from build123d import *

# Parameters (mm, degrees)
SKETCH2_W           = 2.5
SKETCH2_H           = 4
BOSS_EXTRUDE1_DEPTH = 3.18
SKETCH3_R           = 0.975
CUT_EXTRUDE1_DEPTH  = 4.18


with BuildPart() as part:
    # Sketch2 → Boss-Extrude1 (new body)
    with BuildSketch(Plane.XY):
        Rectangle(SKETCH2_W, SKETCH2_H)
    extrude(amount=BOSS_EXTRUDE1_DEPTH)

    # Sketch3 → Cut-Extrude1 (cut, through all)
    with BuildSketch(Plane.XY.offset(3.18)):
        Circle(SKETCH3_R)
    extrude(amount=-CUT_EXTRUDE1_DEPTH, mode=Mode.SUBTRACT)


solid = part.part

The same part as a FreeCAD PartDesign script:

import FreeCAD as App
import Part
import Sketcher

V = App.Vector

doc = App.newDocument("Part")
params = doc.addObject("Spreadsheet::Sheet", "Params")
for row, (alias, value) in enumerate([
    ("sketch1_height", "4 mm"),
    ("sketch1_width", "2.5 mm"),
    ("pad1_length", "3.18 mm"),
    ("sketch2_diameter", "1.95 mm"),
], start=1):
    params.set(f"A{row}", alias)
    params.set(f"B{row}", "=" + value)
    params.setAlias(f"B{row}", alias)

body = doc.addObject("PartDesign::Body", "Body")

# Sketch on XY plane
sketch1 = body.newObject("Sketcher::SketchObject", "Sketch")
sketch1.AttachmentSupport = (doc.getObject("XY_Plane"), [""])
sketch1.MapMode = "FlatFace"
sketch1.addGeometry([
    Part.LineSegment(V(-1.2, 2, 0), V(-1.2, -2, 0)),
    Part.LineSegment(V(-1.2, -2, 0), V(1.2, -2, 0)),
    Part.LineSegment(V(1.2, -2, 0), V(1.2, 2, 0)),
    Part.LineSegment(V(1.2, 2, 0), V(-1.2, 2, 0)),
], False)
sketch1.addConstraint([
    Sketcher.Constraint("Coincident", 0, 2, 1, 1),
    Sketcher.Constraint("Coincident", 1, 2, 2, 1),
    Sketcher.Constraint("Coincident", 2, 2, 3, 1),
    Sketcher.Constraint("Coincident", 3, 2, 0, 1),
    Sketcher.Constraint("Vertical", 0),
    Sketcher.Constraint("Horizontal", 1),
    Sketcher.Constraint("Vertical", 2),
    Sketcher.Constraint("Horizontal", 3),
    Sketcher.Constraint("Symmetric", 0, 2, 2, 2, -1, 1),
    Sketcher.Constraint("DistanceY", 0, 2, 0, 1, 4.0),
    Sketcher.Constraint("DistanceX", 1, 1, 1, 2, 2.5),
])
sketch1.setExpression("Constraints[9]", "Params.sketch1_height")
sketch1.setExpression("Constraints[10]", "Params.sketch1_width")
pad1 = body.newObject("PartDesign::Pad", "Pad")
pad1.Profile = sketch1
pad1.setExpression("Length", "Params.pad1_length")

# Sketch on XY plane
sketch2 = body.newObject("Sketcher::SketchObject", "Sketch001")
sketch2.AttachmentSupport = (doc.getObject("XY_Plane"), [""])
sketch2.MapMode = "FlatFace"
sketch2.AttachmentOffset = App.Placement(V(0, 0, 3.18), App.Rotation())
sketch2.addGeometry(Part.Circle(V(0, 0, 0), V(0, 0, 1), 1), False)
sketch2.addConstraint([
    Sketcher.Constraint("Coincident", 0, 3, -1, 1),
    Sketcher.Constraint("Diameter", 0, 1.95),
])
sketch2.setExpression("Constraints[1]", "Params.sketch2_diameter")
pocket1 = body.newObject("PartDesign::Pocket", "Pocket")
pocket1.Profile = sketch2
pocket1.Type = "ThroughAll"

doc.recompute()
